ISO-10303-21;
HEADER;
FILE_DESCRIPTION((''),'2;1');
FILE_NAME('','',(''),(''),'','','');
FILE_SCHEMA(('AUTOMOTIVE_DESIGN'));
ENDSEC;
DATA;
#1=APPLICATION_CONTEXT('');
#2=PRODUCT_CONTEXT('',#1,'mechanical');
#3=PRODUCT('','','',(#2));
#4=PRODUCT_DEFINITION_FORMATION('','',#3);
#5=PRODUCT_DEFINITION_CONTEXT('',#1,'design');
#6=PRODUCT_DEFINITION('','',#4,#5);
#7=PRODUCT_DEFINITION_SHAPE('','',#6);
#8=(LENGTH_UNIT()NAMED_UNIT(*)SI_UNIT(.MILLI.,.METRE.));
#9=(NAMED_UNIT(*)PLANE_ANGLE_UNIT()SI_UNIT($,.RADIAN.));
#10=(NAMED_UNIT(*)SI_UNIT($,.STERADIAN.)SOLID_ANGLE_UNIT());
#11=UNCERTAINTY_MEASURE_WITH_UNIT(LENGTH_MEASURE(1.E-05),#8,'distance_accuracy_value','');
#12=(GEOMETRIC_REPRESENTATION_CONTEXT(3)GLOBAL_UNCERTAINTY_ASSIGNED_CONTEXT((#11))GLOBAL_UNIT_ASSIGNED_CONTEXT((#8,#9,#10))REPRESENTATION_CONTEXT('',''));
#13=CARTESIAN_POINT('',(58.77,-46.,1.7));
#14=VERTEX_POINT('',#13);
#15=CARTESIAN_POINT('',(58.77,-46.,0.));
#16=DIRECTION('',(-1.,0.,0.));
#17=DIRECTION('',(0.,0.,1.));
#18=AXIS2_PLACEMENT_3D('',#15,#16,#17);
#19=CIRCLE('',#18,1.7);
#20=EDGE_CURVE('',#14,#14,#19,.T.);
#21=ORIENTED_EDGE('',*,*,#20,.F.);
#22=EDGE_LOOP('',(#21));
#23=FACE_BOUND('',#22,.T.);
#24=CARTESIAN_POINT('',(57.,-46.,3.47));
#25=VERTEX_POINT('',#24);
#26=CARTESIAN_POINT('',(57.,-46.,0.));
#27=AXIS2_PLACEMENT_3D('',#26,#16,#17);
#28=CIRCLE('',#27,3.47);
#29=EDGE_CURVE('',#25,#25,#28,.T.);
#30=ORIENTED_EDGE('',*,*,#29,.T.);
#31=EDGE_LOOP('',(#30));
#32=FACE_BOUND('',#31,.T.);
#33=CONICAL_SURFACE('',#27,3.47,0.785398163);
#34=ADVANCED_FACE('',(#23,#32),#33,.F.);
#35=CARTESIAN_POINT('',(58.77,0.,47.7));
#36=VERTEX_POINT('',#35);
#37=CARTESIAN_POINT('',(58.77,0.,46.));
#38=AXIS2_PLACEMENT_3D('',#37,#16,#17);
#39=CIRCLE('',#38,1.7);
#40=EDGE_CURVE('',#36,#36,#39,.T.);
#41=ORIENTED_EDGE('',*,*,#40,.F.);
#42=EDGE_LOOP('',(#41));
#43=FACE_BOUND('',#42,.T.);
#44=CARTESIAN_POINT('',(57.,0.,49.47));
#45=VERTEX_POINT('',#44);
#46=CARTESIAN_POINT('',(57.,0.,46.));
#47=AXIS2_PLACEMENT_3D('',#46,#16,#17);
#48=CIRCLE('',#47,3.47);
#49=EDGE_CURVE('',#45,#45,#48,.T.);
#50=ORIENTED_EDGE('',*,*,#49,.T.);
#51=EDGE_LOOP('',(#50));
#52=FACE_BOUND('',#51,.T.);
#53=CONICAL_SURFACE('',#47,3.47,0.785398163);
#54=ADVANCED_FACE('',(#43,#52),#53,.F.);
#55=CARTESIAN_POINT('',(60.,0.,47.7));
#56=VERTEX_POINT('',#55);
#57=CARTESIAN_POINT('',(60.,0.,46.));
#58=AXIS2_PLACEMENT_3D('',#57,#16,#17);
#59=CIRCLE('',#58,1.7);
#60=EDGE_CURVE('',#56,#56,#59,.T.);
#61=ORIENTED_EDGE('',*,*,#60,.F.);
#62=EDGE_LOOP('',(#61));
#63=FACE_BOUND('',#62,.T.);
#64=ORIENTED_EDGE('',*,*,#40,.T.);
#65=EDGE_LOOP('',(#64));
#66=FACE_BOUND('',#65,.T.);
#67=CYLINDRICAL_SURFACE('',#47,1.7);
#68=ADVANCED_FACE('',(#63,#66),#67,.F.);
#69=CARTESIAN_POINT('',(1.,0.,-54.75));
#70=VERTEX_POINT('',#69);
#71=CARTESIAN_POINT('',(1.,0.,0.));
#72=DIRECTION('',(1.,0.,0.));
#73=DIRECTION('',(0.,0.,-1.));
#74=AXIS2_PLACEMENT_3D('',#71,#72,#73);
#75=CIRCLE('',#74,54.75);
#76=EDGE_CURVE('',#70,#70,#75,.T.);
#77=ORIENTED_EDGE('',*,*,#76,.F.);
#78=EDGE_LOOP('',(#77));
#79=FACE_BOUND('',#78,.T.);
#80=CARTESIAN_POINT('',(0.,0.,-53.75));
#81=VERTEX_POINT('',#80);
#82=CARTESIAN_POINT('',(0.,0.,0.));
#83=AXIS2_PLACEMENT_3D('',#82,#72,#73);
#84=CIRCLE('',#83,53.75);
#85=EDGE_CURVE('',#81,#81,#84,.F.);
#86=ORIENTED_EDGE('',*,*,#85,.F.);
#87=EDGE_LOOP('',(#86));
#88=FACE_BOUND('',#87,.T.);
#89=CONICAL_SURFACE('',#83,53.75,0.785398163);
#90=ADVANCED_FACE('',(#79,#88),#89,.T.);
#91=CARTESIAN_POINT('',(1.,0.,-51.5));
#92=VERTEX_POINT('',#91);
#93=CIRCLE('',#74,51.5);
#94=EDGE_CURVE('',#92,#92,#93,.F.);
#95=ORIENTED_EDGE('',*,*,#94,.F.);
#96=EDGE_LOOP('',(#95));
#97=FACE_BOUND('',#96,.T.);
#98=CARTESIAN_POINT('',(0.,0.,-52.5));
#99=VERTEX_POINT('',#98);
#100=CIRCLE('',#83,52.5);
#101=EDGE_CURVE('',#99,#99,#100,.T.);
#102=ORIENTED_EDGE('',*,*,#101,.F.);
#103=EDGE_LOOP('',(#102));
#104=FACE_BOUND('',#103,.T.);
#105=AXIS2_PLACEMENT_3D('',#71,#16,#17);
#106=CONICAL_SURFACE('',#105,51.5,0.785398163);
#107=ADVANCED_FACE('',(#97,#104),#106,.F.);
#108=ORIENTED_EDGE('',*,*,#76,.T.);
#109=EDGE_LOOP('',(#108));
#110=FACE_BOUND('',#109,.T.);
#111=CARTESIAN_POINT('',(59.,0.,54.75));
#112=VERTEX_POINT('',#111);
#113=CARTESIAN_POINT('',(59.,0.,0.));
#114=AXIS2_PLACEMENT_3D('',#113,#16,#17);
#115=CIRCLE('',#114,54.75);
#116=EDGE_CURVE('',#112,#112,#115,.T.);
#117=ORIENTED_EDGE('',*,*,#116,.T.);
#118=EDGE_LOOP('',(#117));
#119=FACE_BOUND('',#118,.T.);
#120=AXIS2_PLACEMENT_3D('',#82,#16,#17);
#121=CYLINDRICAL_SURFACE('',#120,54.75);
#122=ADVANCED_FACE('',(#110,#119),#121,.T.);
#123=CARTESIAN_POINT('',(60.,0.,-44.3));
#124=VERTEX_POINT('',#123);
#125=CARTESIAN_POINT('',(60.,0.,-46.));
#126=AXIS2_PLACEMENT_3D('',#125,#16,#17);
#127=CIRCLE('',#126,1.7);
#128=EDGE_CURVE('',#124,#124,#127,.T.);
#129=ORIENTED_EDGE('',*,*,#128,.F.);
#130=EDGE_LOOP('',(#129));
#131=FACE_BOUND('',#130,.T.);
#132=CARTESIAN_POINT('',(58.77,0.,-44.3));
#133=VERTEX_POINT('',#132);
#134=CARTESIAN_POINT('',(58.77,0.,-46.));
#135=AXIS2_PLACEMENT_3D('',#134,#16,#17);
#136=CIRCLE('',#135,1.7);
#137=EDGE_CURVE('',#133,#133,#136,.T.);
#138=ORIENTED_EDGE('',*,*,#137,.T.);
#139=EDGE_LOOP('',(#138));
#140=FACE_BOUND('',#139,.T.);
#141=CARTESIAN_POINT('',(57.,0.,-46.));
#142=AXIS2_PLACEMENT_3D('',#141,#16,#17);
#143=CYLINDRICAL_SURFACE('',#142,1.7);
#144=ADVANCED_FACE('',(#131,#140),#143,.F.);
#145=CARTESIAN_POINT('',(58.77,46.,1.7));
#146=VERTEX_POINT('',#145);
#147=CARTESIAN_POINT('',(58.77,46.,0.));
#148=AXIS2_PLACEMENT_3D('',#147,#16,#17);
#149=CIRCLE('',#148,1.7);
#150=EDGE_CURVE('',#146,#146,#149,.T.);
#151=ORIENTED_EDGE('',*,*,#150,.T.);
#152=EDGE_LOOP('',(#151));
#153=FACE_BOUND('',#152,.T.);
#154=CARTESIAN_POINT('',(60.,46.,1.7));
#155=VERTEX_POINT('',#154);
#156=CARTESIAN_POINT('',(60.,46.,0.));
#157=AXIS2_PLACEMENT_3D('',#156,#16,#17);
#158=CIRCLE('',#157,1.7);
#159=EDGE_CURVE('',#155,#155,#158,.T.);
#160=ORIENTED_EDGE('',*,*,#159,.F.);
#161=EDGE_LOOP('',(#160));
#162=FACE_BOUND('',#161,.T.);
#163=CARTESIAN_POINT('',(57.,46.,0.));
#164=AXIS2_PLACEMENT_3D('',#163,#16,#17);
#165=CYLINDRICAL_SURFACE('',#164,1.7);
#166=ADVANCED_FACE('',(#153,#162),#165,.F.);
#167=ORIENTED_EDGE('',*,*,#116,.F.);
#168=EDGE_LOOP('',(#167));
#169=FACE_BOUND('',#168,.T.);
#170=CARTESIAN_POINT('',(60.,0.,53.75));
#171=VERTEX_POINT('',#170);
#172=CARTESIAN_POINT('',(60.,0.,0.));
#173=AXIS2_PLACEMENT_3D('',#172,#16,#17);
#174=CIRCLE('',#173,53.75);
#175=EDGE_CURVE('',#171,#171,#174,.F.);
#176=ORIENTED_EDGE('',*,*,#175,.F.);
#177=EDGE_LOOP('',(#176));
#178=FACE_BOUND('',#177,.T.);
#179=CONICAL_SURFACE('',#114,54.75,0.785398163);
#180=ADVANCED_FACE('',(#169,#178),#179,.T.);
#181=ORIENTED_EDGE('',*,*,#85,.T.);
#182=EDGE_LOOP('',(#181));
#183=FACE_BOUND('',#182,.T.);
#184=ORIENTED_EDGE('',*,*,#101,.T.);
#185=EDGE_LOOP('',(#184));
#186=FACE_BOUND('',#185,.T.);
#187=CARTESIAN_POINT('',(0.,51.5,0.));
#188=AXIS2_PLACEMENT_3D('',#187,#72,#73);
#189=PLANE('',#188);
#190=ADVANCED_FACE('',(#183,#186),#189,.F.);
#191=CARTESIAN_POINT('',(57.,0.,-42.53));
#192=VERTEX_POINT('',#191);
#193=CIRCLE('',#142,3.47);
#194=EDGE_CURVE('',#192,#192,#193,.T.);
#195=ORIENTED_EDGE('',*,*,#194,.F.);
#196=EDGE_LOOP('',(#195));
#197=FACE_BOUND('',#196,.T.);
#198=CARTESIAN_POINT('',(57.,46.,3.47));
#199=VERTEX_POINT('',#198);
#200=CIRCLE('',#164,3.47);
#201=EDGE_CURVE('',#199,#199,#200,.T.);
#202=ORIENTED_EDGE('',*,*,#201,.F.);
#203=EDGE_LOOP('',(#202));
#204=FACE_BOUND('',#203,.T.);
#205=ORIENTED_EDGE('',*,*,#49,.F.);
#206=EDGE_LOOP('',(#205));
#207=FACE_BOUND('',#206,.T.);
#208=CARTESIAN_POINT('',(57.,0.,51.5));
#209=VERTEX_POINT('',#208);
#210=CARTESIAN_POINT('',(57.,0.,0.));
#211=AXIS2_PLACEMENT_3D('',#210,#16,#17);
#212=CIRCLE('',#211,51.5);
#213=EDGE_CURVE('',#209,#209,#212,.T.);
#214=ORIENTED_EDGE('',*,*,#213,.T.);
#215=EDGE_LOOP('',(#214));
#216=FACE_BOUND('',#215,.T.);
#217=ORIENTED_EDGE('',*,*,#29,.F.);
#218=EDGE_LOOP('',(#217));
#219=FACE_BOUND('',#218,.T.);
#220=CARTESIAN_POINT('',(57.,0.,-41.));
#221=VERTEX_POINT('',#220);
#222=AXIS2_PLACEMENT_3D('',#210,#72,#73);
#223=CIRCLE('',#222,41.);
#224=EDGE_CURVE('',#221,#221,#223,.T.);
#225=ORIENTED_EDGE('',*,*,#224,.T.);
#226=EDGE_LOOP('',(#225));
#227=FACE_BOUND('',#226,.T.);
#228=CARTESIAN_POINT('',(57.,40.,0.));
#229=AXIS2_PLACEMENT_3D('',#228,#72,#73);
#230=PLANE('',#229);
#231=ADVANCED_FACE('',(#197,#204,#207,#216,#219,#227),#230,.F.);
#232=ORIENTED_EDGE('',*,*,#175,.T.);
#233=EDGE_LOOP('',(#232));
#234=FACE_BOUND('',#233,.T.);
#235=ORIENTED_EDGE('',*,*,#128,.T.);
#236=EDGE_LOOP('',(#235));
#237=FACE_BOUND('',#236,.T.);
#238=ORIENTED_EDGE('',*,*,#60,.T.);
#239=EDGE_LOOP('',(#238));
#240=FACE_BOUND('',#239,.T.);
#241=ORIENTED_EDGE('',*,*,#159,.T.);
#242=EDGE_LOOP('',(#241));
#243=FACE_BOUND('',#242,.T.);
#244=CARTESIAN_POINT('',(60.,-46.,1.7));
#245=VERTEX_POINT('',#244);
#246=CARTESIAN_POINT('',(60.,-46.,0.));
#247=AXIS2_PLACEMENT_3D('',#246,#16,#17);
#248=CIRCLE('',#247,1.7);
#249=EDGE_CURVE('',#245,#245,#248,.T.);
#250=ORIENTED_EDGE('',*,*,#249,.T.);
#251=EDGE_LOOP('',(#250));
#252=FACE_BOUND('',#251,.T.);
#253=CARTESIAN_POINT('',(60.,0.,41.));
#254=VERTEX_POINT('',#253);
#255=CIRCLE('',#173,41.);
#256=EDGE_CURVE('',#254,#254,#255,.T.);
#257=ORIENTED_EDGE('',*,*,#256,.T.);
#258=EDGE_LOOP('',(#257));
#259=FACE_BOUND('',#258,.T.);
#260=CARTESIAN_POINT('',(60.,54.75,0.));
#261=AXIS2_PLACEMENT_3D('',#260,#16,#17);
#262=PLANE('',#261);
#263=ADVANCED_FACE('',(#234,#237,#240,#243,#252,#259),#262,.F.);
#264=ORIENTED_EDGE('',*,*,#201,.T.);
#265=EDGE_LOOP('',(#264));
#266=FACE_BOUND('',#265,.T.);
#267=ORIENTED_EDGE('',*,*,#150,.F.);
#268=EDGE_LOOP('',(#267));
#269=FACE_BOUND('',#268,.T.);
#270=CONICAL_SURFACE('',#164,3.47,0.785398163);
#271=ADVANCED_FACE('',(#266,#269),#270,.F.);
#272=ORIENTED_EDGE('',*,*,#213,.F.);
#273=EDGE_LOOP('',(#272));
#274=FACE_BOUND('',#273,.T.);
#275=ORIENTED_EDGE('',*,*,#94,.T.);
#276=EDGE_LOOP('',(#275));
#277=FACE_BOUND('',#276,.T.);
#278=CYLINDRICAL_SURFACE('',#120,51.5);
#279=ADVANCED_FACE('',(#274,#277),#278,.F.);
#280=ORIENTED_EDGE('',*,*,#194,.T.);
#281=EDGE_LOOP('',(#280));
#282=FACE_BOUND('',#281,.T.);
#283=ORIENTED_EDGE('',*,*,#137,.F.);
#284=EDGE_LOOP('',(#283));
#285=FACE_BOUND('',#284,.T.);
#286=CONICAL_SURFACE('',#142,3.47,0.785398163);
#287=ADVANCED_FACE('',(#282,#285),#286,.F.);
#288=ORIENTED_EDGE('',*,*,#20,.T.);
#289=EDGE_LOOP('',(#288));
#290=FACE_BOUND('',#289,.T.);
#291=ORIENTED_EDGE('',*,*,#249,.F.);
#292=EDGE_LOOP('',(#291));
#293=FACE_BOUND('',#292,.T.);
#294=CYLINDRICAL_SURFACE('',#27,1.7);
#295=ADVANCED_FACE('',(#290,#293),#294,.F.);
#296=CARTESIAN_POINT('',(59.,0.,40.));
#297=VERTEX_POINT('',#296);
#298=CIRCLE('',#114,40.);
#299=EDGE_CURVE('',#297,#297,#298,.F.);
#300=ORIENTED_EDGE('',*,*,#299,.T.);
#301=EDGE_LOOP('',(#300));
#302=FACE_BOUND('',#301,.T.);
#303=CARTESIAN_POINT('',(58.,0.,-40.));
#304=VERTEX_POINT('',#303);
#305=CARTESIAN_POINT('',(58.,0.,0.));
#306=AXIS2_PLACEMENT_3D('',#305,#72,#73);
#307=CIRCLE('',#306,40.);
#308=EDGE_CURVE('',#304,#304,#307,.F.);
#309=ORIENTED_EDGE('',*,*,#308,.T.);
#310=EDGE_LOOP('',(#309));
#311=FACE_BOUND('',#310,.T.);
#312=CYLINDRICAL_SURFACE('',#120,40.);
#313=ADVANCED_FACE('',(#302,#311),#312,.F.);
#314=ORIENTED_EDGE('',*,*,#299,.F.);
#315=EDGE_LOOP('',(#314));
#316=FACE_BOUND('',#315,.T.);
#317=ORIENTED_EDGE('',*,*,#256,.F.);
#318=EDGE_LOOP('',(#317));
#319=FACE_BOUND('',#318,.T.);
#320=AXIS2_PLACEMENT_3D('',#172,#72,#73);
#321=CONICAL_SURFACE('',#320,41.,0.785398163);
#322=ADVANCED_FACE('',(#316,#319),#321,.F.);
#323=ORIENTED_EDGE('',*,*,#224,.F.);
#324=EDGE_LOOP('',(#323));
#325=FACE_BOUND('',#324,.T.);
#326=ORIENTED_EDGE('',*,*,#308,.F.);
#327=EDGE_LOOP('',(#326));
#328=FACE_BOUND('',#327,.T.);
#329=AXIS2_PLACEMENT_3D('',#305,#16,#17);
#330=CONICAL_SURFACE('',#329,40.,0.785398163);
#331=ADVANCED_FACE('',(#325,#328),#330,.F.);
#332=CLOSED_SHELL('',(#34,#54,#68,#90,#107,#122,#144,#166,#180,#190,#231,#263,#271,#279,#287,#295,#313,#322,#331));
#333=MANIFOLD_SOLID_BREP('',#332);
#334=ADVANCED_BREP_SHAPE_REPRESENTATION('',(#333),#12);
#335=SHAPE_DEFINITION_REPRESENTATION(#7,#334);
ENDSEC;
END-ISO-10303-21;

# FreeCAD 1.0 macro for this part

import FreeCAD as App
import Part
import Sketcher

V = App.Vector
Q = App.Units.Quantity


def edges_at(feature, points):
    """Names of the edges that pass closest to the given points."""
    edges = feature.Shape.Edges
    near = lambda p: min(range(len(edges)), key=lambda i: edges[i].distToShape(Part.Vertex(*p))[0])
    return sorted({f"Edge{near(p) + 1}" for p in points})

doc = App.newDocument("Part")
params = doc.addObject("Spreadsheet::Sheet", "Params")
for row, (alias, value) in enumerate([
    ("sketch1_width", "60 mm"),
    ("sketch1_width2", "57 mm"),
    ("sketch1_height", "11.5 mm"),
    ("sketch1_height2", "3.25 mm"),
    ("revolution_angle", "360 deg"),
    ("chamfer_size", "1 mm"),
    ("sketch2_width", "22.5 mm"),
    ("sketch2_height", "3.47 mm"),
    ("groove_angle", "360 deg"),
], start=1):
    params.set(f"A{row}", alias)
    params.set(f"B{row}", "=" + value)
    params.setAlias(f"B{row}", alias)

body = doc.addObject("PartDesign::Body", "Body")

# Sketch on XY plane
sketch1 = doc.addObject("Sketcher::SketchObject", "Sketch")
body.addObject(sketch1)
sketch1.AttachmentSupport = (doc.XY_Plane, [""])
sketch1.MapMode = "FlatFace"
sketch1.addGeometry([
    Part.LineSegment(V(60, 54.8, 0), V(0, 54.8, 0)),  # 0
    Part.LineSegment(V(0, 54.8, 0), V(0, 51.5, 0)),  # 1
    Part.LineSegment(V(0, 51.5, 0), V(57, 51.5, 0)),  # 2
    Part.LineSegment(V(57, 51.5, 0), V(57, 40, 0)),  # 3
    Part.LineSegment(V(57, 40, 0), V(60, 40, 0)),  # 4
    Part.LineSegment(V(60, 40, 0), V(60, 54.8, 0)),  # 5
], False)
sketch1.addConstraint([
    Sketcher.Constraint("Coincident", 0, 2, 1, 1),
    Sketcher.Constraint("Coincident", 1, 2, 2, 1),
    Sketcher.Constraint("Coincident", 2, 2, 3, 1),
    Sketcher.Constraint("Coincident", 3, 2, 4, 1),
    Sketcher.Constraint("Coincident", 4, 2, 5, 1),
    Sketcher.Constraint("Coincident", 5, 2, 0, 1),
    Sketcher.Constraint("Horizontal", 0),
    Sketcher.Constraint("Vertical", 1),
    Sketcher.Constraint("Horizontal", 2),
    Sketcher.Constraint("Vertical", 3),
    Sketcher.Constraint("Horizontal", 4),
    Sketcher.Constraint("Vertical", 5),
    Sketcher.Constraint("PointOnObject", 0, 2, -2),
    Sketcher.Constraint("DistanceX", 0, 2, 0, 1, Q("60 mm")),
    Sketcher.Constraint("DistanceX", 2, 1, 2, 2, Q("57 mm")),
    Sketcher.Constraint("DistanceY", 3, 2, 3, 1, Q("11.5 mm")),
    Sketcher.Constraint("DistanceY", -1, 1, 3, 2, Q("40 mm")),
    Sketcher.Constraint("DistanceY", 1, 2, 1, 1, Q("3.25 mm")),
])
sketch1.setExpression("Constraints[13]", "Params.sketch1_width")
sketch1.setExpression("Constraints[14]", "Params.sketch1_width2")
sketch1.setExpression("Constraints[15]", "Params.sketch1_height")
sketch1.setExpression("Constraints[17]", "Params.sketch1_height2")
revolution = doc.addObject("PartDesign::Revolution", "Revolution")
body.addObject(revolution)
revolution.Profile = sketch1
revolution.ReferenceAxis = (sketch1, ["H_Axis"])
revolution.setExpression("Angle", "Params.revolution_angle")
doc.recompute()

chamfer = doc.addObject("PartDesign::Chamfer", "Chamfer")
body.addObject(chamfer)
chamfer.Base = (revolution, edges_at(revolution, [
    (0, -51.5, 0),
    (57, -40, 0),
    (60, -40, 0),
    (60, -54.75, 0),
    (0, -54.75, 0),
]))
chamfer.setExpression("Size", "Params.chamfer_size")

# Sketch on XZ plane
sketch2 = doc.addObject("Sketcher::SketchObject", "Sketch001")
body.addObject(sketch2)
sketch2.AttachmentSupport = (doc.XZ_Plane, [""])
sketch2.MapMode = "FlatFace"
sketch2.AttachmentOffset = App.Placement(V(0, 0, -46), App.Rotation())
sketch2.addGeometry([
    Part.LineSegment(V(79.5, 0, 0), V(57, 0, 0)),  # 0
    Part.LineSegment(V(57, 0, 0), V(57, 3.5, 0)),  # 1
    Part.LineSegment(V(57, 3.5, 0), V(58.8, 1.7, 0)),  # 2
    Part.LineSegment(V(58.8, 1.7, 0), V(78.5, 1.7, 0)),  # 3
    Part.LineSegment(V(78.5, 1.7, 0), V(79.5, 0, 0)),  # 4
], False)
sketch2.addConstraint([
    Sketcher.Constraint("Coincident", 0, 2, 1, 1),
    Sketcher.Constraint("Coincident", 1, 2, 2, 1),
    Sketcher.Constraint("Coincident", 2, 2, 3, 1),
    Sketcher.Constraint("Coincident", 3, 2, 4, 1),
    Sketcher.Constraint("Coincident", 4, 2, 0, 1),
    Sketcher.Constraint("Horizontal", 0),
    Sketcher.Constraint("Vertical", 1),
    Sketcher.Constraint("Horizontal", 3),
    Sketcher.Constraint("PointOnObject", 0, 2, -1),
    Sketcher.Constraint("Angle", 2, Q("-45 deg")),
    Sketcher.Constraint("Angle", 4, Q("-59 deg")),
    Sketcher.Constraint("DistanceX", 0, 2, 0, 1, Q("22.5 mm")),
    Sketcher.Constraint("DistanceX", -1, 1, 0, 2, Q("57 mm")),
    Sketcher.Constraint("DistanceY", 1, 1, 1, 2, Q("3.47 mm")),
    Sketcher.Constraint("DistanceY", -1, 1, 2, 2, Q("1.7 mm")),
])
sketch2.setExpression("Constraints[11]", "Params.sketch2_width")
sketch2.setExpression("Constraints[13]", "Params.sketch2_height")
groove = doc.addObject("PartDesign::Groove", "Groove")
body.addObject(groove)
groove.Profile = sketch2
groove.ReferenceAxis = (sketch2, ["H_Axis"])
groove.setExpression("Angle", "Params.groove_angle")
doc.recompute()

polarpattern = doc.addObject("PartDesign::PolarPattern", "PolarPattern")
body.addObject(polarpattern)
polarpattern.Originals = [groove]
polarpattern.Axis = (doc.X_Axis, [""])
polarpattern.Angle = 360
polarpattern.Occurrences = 4
body.Tip = polarpattern

doc.recompute()
